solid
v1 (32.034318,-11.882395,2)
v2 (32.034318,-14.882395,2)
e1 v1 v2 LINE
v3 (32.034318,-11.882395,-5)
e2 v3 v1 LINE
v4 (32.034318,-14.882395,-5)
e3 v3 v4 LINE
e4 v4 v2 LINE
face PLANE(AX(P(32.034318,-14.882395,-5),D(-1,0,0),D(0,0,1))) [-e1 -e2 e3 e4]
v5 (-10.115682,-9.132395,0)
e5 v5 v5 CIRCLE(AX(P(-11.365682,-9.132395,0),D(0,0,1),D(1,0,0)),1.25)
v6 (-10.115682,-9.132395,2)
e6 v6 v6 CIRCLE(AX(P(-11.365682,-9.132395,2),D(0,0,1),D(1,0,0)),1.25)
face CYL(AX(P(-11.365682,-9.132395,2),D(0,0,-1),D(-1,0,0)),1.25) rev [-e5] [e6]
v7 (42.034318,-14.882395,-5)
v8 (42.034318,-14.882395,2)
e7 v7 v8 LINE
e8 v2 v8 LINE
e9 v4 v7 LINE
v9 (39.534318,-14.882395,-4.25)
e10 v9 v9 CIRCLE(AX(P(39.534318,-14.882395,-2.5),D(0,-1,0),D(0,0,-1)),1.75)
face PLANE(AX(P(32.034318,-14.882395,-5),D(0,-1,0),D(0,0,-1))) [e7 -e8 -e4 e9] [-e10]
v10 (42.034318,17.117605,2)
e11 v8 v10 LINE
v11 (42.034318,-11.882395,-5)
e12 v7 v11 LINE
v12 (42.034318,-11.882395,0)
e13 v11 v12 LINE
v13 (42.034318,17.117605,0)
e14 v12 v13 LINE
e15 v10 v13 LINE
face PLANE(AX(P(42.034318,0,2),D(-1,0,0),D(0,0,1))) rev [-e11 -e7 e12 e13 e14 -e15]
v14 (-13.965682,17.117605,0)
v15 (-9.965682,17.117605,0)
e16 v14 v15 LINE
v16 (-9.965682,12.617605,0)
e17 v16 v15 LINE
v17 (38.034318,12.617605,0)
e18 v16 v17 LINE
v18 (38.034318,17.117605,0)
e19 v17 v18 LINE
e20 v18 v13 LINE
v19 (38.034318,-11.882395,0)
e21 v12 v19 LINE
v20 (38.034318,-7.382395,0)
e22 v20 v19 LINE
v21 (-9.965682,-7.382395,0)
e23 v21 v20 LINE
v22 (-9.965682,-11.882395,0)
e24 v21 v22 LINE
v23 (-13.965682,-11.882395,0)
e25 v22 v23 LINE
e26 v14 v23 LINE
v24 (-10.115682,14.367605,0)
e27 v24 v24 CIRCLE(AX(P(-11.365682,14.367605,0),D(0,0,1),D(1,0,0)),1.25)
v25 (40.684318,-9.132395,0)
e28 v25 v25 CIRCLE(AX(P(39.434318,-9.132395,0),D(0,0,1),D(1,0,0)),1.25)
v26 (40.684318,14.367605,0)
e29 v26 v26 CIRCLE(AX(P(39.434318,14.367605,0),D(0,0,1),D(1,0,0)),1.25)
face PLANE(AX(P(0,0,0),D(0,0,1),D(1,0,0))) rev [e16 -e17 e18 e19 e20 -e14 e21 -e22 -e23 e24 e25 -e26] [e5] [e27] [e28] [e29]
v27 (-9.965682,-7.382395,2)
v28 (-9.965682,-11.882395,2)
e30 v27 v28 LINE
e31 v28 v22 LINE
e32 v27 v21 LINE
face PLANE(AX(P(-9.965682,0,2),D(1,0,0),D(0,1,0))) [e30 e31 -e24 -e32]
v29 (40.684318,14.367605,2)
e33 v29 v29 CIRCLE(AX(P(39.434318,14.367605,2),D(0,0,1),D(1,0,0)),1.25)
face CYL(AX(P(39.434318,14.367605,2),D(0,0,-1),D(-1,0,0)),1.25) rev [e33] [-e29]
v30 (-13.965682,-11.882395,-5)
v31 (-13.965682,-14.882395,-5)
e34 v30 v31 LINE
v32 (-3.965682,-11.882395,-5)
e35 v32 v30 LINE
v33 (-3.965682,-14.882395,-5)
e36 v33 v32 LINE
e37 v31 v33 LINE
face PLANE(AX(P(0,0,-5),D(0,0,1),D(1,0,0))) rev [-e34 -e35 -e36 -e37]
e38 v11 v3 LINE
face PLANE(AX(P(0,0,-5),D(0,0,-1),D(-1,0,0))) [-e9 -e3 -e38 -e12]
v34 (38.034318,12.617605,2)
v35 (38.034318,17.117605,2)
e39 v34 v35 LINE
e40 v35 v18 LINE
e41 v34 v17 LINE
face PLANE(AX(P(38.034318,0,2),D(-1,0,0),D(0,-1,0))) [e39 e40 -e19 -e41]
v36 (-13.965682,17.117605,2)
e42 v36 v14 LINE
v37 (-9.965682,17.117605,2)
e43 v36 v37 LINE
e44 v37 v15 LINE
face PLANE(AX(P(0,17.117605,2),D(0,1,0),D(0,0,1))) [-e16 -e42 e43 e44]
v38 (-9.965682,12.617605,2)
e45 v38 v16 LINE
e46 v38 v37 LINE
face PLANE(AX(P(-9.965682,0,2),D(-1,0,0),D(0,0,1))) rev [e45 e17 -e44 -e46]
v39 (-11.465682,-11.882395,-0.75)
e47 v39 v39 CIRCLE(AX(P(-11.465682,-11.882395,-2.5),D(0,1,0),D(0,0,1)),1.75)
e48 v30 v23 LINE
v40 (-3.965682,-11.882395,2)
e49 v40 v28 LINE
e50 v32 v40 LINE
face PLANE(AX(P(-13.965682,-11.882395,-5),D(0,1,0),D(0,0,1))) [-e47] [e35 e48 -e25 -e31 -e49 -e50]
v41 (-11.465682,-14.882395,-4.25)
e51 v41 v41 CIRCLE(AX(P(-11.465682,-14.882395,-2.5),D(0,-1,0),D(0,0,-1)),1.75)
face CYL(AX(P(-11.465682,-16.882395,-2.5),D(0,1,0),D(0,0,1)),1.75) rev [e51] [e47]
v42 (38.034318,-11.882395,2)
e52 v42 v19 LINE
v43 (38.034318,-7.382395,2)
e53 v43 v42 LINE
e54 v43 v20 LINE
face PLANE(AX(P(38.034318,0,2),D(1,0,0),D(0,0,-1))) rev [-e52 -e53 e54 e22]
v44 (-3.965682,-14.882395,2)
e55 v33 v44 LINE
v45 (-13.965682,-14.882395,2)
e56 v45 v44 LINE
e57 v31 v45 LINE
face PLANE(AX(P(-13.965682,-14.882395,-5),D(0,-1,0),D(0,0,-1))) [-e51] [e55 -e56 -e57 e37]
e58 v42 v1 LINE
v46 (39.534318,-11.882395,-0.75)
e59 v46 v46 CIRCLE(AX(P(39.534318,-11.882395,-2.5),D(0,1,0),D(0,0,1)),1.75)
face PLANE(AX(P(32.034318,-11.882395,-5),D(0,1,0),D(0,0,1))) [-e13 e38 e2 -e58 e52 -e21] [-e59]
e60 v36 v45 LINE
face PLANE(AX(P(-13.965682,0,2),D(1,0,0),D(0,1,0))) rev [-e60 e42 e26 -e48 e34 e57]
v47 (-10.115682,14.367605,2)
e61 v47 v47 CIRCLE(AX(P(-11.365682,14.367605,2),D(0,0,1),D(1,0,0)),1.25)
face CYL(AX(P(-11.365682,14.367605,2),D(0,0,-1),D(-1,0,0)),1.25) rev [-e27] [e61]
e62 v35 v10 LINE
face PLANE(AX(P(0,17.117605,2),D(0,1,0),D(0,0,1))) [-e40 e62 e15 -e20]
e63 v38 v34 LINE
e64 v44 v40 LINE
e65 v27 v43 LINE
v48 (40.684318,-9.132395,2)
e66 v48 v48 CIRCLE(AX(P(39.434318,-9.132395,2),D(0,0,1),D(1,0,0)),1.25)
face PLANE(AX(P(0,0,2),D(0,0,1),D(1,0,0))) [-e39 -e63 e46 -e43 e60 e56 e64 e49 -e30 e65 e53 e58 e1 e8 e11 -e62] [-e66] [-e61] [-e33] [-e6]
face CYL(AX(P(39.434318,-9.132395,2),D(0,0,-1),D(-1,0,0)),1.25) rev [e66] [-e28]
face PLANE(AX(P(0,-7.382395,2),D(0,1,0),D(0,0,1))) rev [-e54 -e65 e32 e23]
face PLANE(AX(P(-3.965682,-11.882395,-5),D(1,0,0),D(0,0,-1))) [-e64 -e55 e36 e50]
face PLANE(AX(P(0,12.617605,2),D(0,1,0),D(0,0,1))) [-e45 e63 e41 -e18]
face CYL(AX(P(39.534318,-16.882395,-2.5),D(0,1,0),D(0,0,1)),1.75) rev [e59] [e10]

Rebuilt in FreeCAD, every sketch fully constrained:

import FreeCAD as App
import Part
import Sketcher

V = App.Vector
Q = App.Units.Quantity

doc = App.newDocument("Part")
body = doc.addObject("PartDesign::Body", "Body")

# Sketch on XY plane
sketch1 = body.newObject("Sketcher::SketchObject", "Sketch")
sketch1.AttachmentSupport = (doc.getObject("XY_Plane"), [""])
sketch1.MapMode = "FlatFace"
sketch1.addGeometry([
    Part.LineSegment(V(-13.965682, 17.117605, 0), V(-13.965682, -11.882395, 0)),  # 0
    Part.LineSegment(V(-13.965682, -11.882395, 0), V(-9.965682, -11.882395, 0)),  # 1
    Part.LineSegment(V(-9.965682, -11.882395, 0), V(-9.965682, -7.382395, 0)),  # 2
    Part.LineSegment(V(-9.965682, -7.382395, 0), V(38.034318, -7.382395, 0)),  # 3
    Part.LineSegment(V(38.034318, -7.382395, 0), V(38.034318, -11.882395, 0)),  # 4
    Part.LineSegment(V(38.034318, -11.882395, 0), V(42.034318, -11.882395, 0)),  # 5
    Part.LineSegment(V(42.034318, -11.882395, 0), V(42.034318, 17.117605, 0)),  # 6
    Part.LineSegment(V(42.034318, 17.117605, 0), V(38.034318, 17.117605, 0)),  # 7
    Part.LineSegment(V(38.034318, 17.117605, 0), V(38.034318, 12.617605, 0)),  # 8
    Part.LineSegment(V(38.034318, 12.617605, 0), V(-9.965682, 12.617605, 0)),  # 9
    Part.LineSegment(V(-9.965682, 12.617605, 0), V(-9.965682, 17.117605, 0)),  # 10
    Part.LineSegment(V(-9.965682, 17.117605, 0), V(-13.965682, 17.117605, 0)),  # 11
    Part.Circle(V(-11.365682, -9.132395, 0), V(0, 0, 1), 1.25),  # 12
    Part.Circle(V(39.434318, -9.132395, 0), V(0, 0, 1), 1.25),  # 13
    Part.Circle(V(-11.365682, 14.367605, 0), V(0, 0, 1), 1.25),  # 14
    Part.Circle(V(39.434318, 14.367605, 0), V(0, 0, 1), 1.25),  # 15
], False)
sketch1.addConstraint([
    Sketcher.Constraint("Coincident", 0, 2, 1, 1),
    Sketcher.Constraint("Coincident", 1, 2, 2, 1),
    Sketcher.Constraint("Coincident", 2, 2, 3, 1),
    Sketcher.Constraint("Coincident", 3, 2, 4, 1),
    Sketcher.Constraint("Coincident", 4, 2, 5, 1),
    Sketcher.Constraint("Coincident", 5, 2, 6, 1),
    Sketcher.Constraint("Coincident", 6, 2, 7, 1),
    Sketcher.Constraint("Coincident", 7, 2, 8, 1),
    Sketcher.Constraint("Coincident", 8, 2, 9, 1),
    Sketcher.Constraint("Coincident", 9, 2, 10, 1),
    Sketcher.Constraint("Coincident", 10, 2, 11, 1),
    Sketcher.Constraint("Coincident", 11, 2, 0, 1),
    Sketcher.Constraint("Vertical", 0),
    Sketcher.Constraint("Horizontal", 1),
    Sketcher.Constraint("Vertical", 2),
    Sketcher.Constraint("Horizontal", 3),
    Sketcher.Constraint("Vertical", 4),
    Sketcher.Constraint("Horizontal", 5),
    Sketcher.Constraint("Vertical", 6),
    Sketcher.Constraint("Horizontal", 7),
    Sketcher.Constraint("Vertical", 8),
    Sketcher.Constraint("Horizontal", 9),
    Sketcher.Constraint("Vertical", 10),
    Sketcher.Constraint("Horizontal", 11),
    Sketcher.Constraint("Equal", 12, 13),
    Sketcher.Constraint("Equal", 13, 14),
    Sketcher.Constraint("Equal", 14, 15),
    Sketcher.Constraint("Horizontal", 12, 3, 13, 3),
    Sketcher.Constraint("Horizontal", 14, 3, 15, 3),
    Sketcher.Constraint("Horizontal", 1, 2, 4, 2),
    Sketcher.Constraint("Horizontal", 7, 2, 10, 2),
    Sketcher.Constraint("Vertical", 12, 3, 14, 3),
    Sketcher.Constraint("Vertical", 13, 3, 15, 3),
    Sketcher.Constraint("Vertical", 4, 2, 7, 2),
    Sketcher.Constraint("Vertical", 2, 2, 9, 2),
    Sketcher.Constraint("Equal", 1, 5),
    Sketcher.Constraint("Equal", 4, 8),
    Sketcher.Constraint("Diameter", 12, Q("2.5 mm")),
    Sketcher.Constraint("DistanceX", 1, 1, 1, 2, Q("4 mm")),
    Sketcher.Constraint("DistanceX", 3, 1, 3, 2, Q("48 mm")),
    Sketcher.Constraint("DistanceY", 0, 2, 0, 1, Q("29 mm")),
    Sketcher.Constraint("DistanceY", 2, 1, 2, 2, Q("4.5 mm")),
    Sketcher.Constraint("DistanceX", 12, 3, 13, 3, Q("50.8 mm")),
    Sketcher.Constraint("DistanceY", 12, 3, 14, 3, Q("23.5 mm")),
    Sketcher.Constraint("DistanceX", 0, 2, 12, 3, Q("2.6 mm")),
    Sketcher.Constraint("DistanceY", 0, 2, 12, 3, Q("2.75 mm")),
    Sketcher.Constraint("DistanceX", 12, 3, -1, 1, Q("11.365682 mm")),
    Sketcher.Constraint("DistanceY", 12, 3, -1, 1, Q("9.132395 mm")),
])
pad1 = body.newObject("PartDesign::Pad", "Pad")
pad1.Profile = sketch1
pad1.Length = 2

# Sketch on XY plane
sketch2 = body.newObject("Sketcher::SketchObject", "Sketch001")
sketch2.AttachmentSupport = (doc.getObject("XY_Plane"), [""])
sketch2.MapMode = "FlatFace"
sketch2.AttachmentOffset = App.Placement(V(0, 0, 2), App.Rotation())
sketch2.addGeometry([
    Part.LineSegment(V(-13.965682, -11.882395, 0), V(-13.965682, -14.882395, 0)),  # 0
    Part.LineSegment(V(-13.965682, -14.882395, 0), V(-3.965682, -14.882395, 0)),  # 1
    Part.LineSegment(V(-3.965682, -14.882395, 0), V(-3.965682, -11.882395, 0)),  # 2
    Part.LineSegment(V(-3.965682, -11.882395, 0), V(-13.965682, -11.882395, 0)),  # 3
    Part.LineSegment(V(32.034318, -11.882395, 0), V(32.034318, -14.882395, 0)),  # 4
    Part.LineSegment(V(32.034318, -14.882395, 0), V(42.034318, -14.882395, 0)),  # 5
    Part.LineSegment(V(42.034318, -14.882395, 0), V(42.034318, -11.882395, 0)),  # 6
    Part.LineSegment(V(42.034318, -11.882395, 0), V(32.034318, -11.882395, 0)),  # 7
], False)
sketch2.addConstraint([
    Sketcher.Constraint("Coincident", 0, 2, 1, 1),
    Sketcher.Constraint("Coincident", 1, 2, 2, 1),
    Sketcher.Constraint("Coincident", 2, 2, 3, 1),
    Sketcher.Constraint("Coincident", 3, 2, 0, 1),
    Sketcher.Constraint("Coincident", 4, 2, 5, 1),
    Sketcher.Constraint("Coincident", 5, 2, 6, 1),
    Sketcher.Constraint("Coincident", 6, 2, 7, 1),
    Sketcher.Constraint("Coincident", 7, 2, 4, 1),
    Sketcher.Constraint("Vertical", 0),
    Sketcher.Constraint("Horizontal", 1),
    Sketcher.Constraint("Vertical", 2),
    Sketcher.Constraint("Horizontal", 3),
    Sketcher.Constraint("Vertical", 4),
    Sketcher.Constraint("Horizontal", 5),
    Sketcher.Constraint("Vertical", 6),
    Sketcher.Constraint("Horizontal", 7),
    Sketcher.Constraint("Horizontal", 1, 2, 4, 2),
    Sketcher.Constraint("Horizontal", 3, 2, 6, 2),
    Sketcher.Constraint("Equal", 3, 5),
    Sketcher.Constraint("DistanceX", 1, 1, 1, 2, Q("10 mm")),
    Sketcher.Constraint("DistanceY", 0, 2, 0, 1, Q("3 mm")),
    Sketcher.Constraint("DistanceX", 1, 2, 4, 2, Q("36 mm")),
    Sketcher.Constraint("DistanceX", 0, 2, -1, 1, Q("13.965682 mm")),
    Sketcher.Constraint("DistanceY", 0, 2, -1, 1, Q("14.882395 mm")),
])
pad2 = body.newObject("PartDesign::Pad", "Pad001")
pad2.Profile = sketch2
pad2.Length = 7
pad2.Reversed = True

# Sketch on XZ plane
sketch3 = body.newObject("Sketcher::SketchObject", "Sketch002")
sketch3.AttachmentSupport = (doc.getObject("XZ_Plane"), [""])
sketch3.MapMode = "FlatFace"
sketch3.AttachmentOffset = App.Placement(V(0, 0, 11.882395), App.Rotation())
sketch3.addGeometry([
    Part.Circle(V(-11.465682, -2.5, 0), V(0, 0, 1), 1.75),
    Part.Circle(V(39.534318, -2.5, 0), V(0, 0, 1), 1.75),
], False)
sketch3.addConstraint([
    Sketcher.Constraint("Equal", 0, 1),
    Sketcher.Constraint("Horizontal", 0, 3, 1, 3),
    Sketcher.Constraint("Diameter", 0, Q("3.5 mm")),
    Sketcher.Constraint("DistanceX", 0, 3, 1, 3, Q("51 mm")),
    Sketcher.Constraint("DistanceY", 0, 3, -1, 1, Q("2.5 mm")),
    Sketcher.Constraint("DistanceX", 0, 3, -1, 1, Q("11.465682 mm")),
])
pocket1 = body.newObject("PartDesign::Pocket", "Pocket")
pocket1.Profile = sketch3
pocket1.Length = 5
pocket1.Reversed = True

doc.recompute()
